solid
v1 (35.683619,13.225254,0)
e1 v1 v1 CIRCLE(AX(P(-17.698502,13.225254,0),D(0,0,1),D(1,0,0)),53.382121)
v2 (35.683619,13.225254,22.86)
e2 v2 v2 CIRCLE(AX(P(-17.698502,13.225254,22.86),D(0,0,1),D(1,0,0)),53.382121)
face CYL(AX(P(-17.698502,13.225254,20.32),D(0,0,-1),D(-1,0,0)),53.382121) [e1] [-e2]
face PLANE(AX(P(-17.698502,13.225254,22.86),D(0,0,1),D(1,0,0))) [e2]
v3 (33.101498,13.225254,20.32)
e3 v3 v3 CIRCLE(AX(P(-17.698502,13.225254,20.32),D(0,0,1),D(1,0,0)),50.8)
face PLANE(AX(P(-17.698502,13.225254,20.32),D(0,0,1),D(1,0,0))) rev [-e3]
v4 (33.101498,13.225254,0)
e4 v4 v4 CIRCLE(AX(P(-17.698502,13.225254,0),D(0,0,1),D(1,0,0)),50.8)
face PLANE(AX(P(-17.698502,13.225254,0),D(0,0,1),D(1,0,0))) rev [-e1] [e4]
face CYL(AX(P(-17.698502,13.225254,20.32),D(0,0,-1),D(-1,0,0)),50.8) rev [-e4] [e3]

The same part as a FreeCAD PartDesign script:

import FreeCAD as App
import Part
import Sketcher

V = App.Vector
Q = App.Units.Quantity

doc = App.newDocument("Part")
body = doc.addObject("PartDesign::Body", "Body")

# Sketch on XY plane
sketch1 = body.newObject("Sketcher::SketchObject", "Sketch")
sketch1.AttachmentSupport = (doc.getObject("XY_Plane"), [""])
sketch1.MapMode = "FlatFace"
sketch1.addGeometry([
    Part.Circle(V(-17.698502, 13.225254, 0), V(0, 0, 1), 53.382121),
    Part.Circle(V(-17.698502, 13.225254, 0), V(0, 0, 1), 50.8),
], False)
sketch1.addConstraint([
    Sketcher.Constraint("Coincident", 1, 3, 0, 3),
    Sketcher.Constraint("Diameter", 1, Q("4 in")),
    Sketcher.Constraint("Diameter", 0, 106.764243),
    Sketcher.Constraint("DistanceX", 0, 3, -1, 1, 17.698502),
    Sketcher.Constraint("DistanceY", -1, 1, 0, 3, 13.225254),
])
pad1 = body.newObject("PartDesign::Pad", "Pad")
pad1.Profile = sketch1
pad1.Length = Q("0.8 in")

# Sketch on XY plane
sketch2 = body.newObject("Sketcher::SketchObject", "Sketch001")
sketch2.AttachmentSupport = (doc.getObject("XY_Plane"), [""])
sketch2.MapMode = "FlatFace"
sketch2.AttachmentOffset = App.Placement(V(0, 0, 0.8 * 25.4), App.Rotation())
sketch2.addGeometry(Part.Circle(V(-17.698502, 13.225254, 0), V(0, 0, 1), 53.382121), False)
sketch2.addConstraint([
    Sketcher.Constraint("Diameter", 0, 106.764243),
    Sketcher.Constraint("DistanceX", 0, 3, -1, 1, 17.698502),
    Sketcher.Constraint("DistanceY", -1, 1, 0, 3, 13.225254),
])
pad2 = body.newObject("PartDesign::Pad", "Pad001")
pad2.Profile = sketch2
pad2.Length = Q("0.1 in")

doc.recompute()
